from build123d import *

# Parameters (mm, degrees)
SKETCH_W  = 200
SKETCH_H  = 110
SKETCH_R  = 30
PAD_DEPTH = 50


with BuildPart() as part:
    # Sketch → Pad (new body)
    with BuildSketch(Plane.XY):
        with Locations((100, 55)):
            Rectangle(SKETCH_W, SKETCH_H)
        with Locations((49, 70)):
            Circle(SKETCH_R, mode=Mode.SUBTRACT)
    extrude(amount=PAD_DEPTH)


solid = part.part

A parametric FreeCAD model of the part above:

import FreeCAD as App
import Part
import Sketcher
from FreeCAD import Vector


def add_polygon(sketch, points):
    """Adds a closed chain of lines whose ends are joined by coincident constraints."""
    first, n = sketch.GeometryCount, len(points)
    for a, b in zip(points, points[1:] + points[:1]):
        sketch.addGeometry(Part.LineSegment(App.Vector(*a, 0), App.Vector(*b, 0)), False)
    for i in range(n):
        sketch.addConstraint(Sketcher.Constraint("Coincident", first + i, 2, first + (i + 1) % n, 1))

doc = App.newDocument("Part")
body = doc.addObject("PartDesign::Body", "Body")

sketch1 = body.newObject("Sketcher::SketchObject", "Sketch")
sketch1.AttachmentSupport = (doc.getObject("XY_Plane"), [""])
sketch1.MapMode = "FlatFace"
add_polygon(sketch1, [(0, 110), (0, 0), (200, 0), (200, 110)])
sketch1.addGeometry(Part.Circle(Vector(49, 70, 0), Vector(0, 0, 1), 30), False)
sketch1.addConstraint([
    Sketcher.Constraint("Vertical", 0),
    Sketcher.Constraint("Horizontal", 1),
    Sketcher.Constraint("Vertical", 2),
    Sketcher.Constraint("Horizontal", 3),
    Sketcher.Constraint("Coincident", 0, 2, -1, 1),
    Sketcher.Constraint("Diameter", 4, 60.0),
    Sketcher.Constraint("DistanceX", 1, 1, 1, 2, 200.0),
    Sketcher.Constraint("DistanceY", 0, 2, 0, 1, 110.0),
    Sketcher.Constraint("DistanceX", -1, 1, 4, 3, 49.0),
    Sketcher.Constraint("DistanceY", -1, 1, 4, 3, 70.0),
])
pad1 = body.newObject("PartDesign::Pad", "Pad")
pad1.Profile = sketch1
pad1.Length = 50

doc.recompute()
